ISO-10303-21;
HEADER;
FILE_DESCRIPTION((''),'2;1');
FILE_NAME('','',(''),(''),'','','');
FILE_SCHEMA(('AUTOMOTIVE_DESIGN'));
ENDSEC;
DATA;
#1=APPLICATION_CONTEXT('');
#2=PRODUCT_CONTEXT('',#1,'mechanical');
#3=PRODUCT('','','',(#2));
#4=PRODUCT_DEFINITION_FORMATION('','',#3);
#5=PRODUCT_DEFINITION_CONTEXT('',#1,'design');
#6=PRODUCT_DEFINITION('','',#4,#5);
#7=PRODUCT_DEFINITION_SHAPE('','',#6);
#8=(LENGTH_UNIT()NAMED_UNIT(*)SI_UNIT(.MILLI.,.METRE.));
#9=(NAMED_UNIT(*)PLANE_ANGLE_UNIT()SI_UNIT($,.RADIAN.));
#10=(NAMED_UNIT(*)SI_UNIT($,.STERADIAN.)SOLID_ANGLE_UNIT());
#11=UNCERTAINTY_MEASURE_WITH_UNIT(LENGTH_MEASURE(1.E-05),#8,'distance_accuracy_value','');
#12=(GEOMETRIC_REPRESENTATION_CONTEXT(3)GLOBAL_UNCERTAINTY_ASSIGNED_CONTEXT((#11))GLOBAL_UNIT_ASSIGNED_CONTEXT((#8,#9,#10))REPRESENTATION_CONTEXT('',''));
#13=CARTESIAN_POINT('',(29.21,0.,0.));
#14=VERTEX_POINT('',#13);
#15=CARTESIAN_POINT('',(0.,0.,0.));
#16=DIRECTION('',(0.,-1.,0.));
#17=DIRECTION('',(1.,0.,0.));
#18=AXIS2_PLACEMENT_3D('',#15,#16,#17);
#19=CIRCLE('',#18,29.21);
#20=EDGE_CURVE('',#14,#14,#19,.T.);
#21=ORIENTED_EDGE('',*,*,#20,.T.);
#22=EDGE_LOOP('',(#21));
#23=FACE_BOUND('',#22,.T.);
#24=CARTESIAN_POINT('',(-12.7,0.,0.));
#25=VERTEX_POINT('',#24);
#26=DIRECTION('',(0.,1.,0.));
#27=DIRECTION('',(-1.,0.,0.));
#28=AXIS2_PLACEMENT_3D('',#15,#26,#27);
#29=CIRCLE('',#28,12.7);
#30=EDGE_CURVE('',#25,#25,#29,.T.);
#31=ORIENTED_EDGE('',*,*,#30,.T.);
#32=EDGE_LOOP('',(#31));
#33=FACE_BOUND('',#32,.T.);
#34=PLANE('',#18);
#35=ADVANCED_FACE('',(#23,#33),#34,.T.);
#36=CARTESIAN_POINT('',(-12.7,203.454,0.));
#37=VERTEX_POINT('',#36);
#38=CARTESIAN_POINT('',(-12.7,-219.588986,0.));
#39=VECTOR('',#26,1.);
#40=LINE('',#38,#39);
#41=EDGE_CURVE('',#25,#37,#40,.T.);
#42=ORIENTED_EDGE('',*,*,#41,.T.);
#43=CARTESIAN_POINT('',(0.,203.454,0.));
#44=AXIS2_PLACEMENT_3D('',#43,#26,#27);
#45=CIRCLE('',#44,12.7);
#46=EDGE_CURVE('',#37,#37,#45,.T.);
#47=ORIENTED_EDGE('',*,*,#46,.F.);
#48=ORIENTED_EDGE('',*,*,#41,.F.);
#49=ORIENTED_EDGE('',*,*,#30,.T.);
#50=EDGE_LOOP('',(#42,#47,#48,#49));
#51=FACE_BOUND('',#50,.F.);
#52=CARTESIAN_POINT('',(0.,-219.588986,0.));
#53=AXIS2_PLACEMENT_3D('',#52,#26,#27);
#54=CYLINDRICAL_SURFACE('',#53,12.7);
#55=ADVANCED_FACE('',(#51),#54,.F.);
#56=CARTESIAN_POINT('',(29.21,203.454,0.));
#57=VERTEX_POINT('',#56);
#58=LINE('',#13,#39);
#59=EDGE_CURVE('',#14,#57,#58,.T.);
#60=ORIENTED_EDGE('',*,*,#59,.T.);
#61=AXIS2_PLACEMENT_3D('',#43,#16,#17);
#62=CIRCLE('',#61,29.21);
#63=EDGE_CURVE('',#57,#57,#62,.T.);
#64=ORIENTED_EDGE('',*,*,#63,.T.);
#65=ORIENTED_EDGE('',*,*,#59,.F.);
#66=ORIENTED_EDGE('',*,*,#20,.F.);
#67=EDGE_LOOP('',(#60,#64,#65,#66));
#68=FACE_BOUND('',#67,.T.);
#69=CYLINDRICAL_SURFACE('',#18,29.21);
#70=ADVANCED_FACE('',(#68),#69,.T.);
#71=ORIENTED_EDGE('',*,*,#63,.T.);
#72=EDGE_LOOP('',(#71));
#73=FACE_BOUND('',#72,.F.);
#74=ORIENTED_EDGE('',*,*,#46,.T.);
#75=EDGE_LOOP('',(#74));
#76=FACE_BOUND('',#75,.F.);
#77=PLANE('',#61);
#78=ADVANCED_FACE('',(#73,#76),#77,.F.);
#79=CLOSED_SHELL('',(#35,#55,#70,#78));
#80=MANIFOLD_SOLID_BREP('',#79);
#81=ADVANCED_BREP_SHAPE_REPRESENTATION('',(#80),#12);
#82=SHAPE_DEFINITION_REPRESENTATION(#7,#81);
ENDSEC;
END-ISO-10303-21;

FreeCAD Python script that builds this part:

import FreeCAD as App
import Part
import Sketcher
from FreeCAD import Vector
Q = App.Units.Quantity

doc = App.newDocument("Part")
body = doc.addObject("PartDesign::Body", "Body")

# Sketch on XZ plane
sketch1 = body.newObject("Sketcher::SketchObject", "Sketch")
sketch1.AttachmentSupport = (doc.getObject("XZ_Plane"), [""])
sketch1.MapMode = "FlatFace"
sketch1.addGeometry(Part.Circle(Vector(0, 0, 0), Vector(0, 0, 1), 29), False)
sketch1.addConstraint([
    Sketcher.Constraint("Coincident", 0, 3, -1, 1),
    Sketcher.Constraint("Diameter", 0, Q("2.3 in")),
])
pad1 = body.newObject("PartDesign::Pad", "Pad")
pad1.Profile = sketch1
pad1.Length = Q("8.01 in")
pad1.Reversed = True

# Sketch on XZ plane
sketch2 = body.newObject("Sketcher::SketchObject", "Sketch001")
sketch2.AttachmentSupport = (doc.getObject("XZ_Plane"), [""])
sketch2.MapMode = "FlatFace"
sketch2.addGeometry(Part.Circle(Vector(0, 0, 0), Vector(0, 0, 1), 13), False)
sketch2.addConstraint([
    Sketcher.Constraint("Coincident", 0, 3, -1, 1),
    Sketcher.Constraint("Diameter", 0, Q("1 in")),
])
doc.recompute()
hole = body.newObject("PartDesign::Hole", "Hole")
hole.Profile = sketch2
hole.ThreadType = "None"
hole.Diameter = Q("1 in")
hole.DepthType = "ThroughAll"

doc.recompute()
